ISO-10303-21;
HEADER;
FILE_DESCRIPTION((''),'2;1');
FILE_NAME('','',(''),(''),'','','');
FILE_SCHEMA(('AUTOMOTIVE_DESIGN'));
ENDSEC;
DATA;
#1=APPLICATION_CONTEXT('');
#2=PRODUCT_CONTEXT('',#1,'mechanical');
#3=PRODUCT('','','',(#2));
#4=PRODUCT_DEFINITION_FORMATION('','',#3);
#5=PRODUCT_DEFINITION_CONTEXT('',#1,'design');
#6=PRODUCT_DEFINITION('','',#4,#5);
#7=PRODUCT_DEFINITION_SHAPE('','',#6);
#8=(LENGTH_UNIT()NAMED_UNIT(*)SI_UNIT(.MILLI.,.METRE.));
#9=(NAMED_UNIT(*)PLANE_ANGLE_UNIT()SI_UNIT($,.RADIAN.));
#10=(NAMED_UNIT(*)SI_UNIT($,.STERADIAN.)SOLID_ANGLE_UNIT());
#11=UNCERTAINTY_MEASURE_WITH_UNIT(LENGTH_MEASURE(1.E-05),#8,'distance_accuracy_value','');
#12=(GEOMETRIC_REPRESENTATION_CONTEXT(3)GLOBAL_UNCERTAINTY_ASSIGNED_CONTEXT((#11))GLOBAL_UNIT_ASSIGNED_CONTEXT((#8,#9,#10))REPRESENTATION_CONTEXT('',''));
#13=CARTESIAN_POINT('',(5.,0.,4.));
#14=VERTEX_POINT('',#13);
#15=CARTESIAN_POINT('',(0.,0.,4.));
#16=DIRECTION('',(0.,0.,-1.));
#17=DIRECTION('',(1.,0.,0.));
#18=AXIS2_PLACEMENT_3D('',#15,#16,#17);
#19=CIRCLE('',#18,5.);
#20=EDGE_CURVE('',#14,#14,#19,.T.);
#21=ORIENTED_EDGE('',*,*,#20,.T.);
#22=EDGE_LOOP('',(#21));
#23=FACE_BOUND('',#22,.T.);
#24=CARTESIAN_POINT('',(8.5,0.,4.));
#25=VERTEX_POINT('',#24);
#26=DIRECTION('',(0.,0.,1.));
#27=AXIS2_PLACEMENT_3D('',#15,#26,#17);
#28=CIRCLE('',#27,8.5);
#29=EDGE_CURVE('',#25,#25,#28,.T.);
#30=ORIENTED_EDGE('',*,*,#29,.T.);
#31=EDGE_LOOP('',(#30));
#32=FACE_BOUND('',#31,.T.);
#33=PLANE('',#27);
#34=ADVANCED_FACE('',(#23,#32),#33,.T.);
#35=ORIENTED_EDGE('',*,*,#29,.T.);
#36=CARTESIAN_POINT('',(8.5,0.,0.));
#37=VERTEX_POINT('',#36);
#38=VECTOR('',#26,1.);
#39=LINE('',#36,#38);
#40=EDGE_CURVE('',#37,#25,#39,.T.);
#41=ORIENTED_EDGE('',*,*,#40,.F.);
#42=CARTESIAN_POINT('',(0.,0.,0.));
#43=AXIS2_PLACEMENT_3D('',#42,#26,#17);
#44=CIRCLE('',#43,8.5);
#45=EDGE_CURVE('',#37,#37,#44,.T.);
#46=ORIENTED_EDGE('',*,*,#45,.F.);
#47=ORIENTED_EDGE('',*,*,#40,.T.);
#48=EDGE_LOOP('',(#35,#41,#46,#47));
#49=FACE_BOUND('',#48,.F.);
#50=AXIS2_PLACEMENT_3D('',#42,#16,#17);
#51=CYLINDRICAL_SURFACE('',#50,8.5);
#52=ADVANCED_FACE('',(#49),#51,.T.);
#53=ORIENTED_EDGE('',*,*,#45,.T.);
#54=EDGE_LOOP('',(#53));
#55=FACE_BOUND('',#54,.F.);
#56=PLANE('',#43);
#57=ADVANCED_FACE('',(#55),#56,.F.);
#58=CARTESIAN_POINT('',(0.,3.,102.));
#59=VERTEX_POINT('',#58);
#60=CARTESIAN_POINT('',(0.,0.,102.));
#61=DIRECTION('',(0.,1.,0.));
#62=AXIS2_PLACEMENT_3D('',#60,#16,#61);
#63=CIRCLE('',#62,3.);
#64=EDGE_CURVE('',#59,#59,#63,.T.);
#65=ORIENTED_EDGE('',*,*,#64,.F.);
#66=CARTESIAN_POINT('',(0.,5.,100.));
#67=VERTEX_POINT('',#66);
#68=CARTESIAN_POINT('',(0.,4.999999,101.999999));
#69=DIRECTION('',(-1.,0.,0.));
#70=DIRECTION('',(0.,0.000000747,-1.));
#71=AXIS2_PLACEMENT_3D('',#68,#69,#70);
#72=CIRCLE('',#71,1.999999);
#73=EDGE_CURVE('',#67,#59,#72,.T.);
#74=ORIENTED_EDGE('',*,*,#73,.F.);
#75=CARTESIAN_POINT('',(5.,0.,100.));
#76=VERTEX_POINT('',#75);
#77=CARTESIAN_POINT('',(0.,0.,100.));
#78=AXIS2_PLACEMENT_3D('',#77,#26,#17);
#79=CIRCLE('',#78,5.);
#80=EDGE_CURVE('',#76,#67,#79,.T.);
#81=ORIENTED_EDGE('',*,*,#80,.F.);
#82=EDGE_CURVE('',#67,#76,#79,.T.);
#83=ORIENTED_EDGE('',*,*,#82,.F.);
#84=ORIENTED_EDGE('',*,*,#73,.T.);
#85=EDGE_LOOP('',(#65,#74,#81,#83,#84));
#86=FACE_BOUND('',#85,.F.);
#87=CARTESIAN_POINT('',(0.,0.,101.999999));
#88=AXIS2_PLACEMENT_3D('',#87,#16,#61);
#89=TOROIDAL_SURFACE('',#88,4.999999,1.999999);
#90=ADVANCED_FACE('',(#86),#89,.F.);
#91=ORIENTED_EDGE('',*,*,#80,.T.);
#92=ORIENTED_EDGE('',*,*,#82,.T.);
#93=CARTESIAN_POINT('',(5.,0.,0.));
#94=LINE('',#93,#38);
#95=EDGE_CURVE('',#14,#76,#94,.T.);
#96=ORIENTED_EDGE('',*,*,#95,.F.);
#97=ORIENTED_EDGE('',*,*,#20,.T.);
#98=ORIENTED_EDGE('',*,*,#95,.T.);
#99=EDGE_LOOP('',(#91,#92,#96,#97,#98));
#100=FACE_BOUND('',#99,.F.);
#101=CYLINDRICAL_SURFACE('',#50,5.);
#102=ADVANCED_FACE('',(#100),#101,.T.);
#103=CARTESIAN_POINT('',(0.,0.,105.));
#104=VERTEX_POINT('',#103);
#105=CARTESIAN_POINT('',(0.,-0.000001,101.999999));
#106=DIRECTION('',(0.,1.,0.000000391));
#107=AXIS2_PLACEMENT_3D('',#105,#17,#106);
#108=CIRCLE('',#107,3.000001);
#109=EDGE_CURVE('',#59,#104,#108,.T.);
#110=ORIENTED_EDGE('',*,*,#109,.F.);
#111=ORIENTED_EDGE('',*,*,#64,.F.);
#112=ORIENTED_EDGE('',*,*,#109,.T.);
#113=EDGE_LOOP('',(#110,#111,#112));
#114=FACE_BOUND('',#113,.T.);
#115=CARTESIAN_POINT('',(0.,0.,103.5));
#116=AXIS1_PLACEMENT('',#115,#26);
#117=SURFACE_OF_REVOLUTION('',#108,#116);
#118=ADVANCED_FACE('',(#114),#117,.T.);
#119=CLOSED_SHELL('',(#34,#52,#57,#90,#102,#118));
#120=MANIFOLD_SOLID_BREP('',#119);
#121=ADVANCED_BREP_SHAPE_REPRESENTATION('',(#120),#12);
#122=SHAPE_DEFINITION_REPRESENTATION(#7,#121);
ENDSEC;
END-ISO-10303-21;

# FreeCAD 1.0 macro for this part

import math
import FreeCAD as App
import Part
import Sketcher

V = App.Vector

doc = App.newDocument("Part")
body = doc.addObject("PartDesign::Body", "Body")

# Sketch on XY plane
sketch1 = doc.addObject("Sketcher::SketchObject", "Sketch")
body.addObject(sketch1)
sketch1.AttachmentSupport = (doc.XY_Plane, [""])
sketch1.MapMode = "FlatFace"
sketch1.addGeometry(Part.Circle(V(0, 0, 0), V(0, 0, 1), 8), False)
sketch1.addConstraint([
    Sketcher.Constraint("Coincident", 0, 3, -1, 1),
    Sketcher.Constraint("Diameter", 0, 17.0),
])
pad1 = doc.addObject("PartDesign::Pad", "Pad")
body.addObject(pad1)
pad1.Profile = sketch1
pad1.Length = 4

# Sketch on XY plane
sketch2 = doc.addObject("Sketcher::SketchObject", "Sketch001")
body.addObject(sketch2)
sketch2.AttachmentSupport = (doc.XY_Plane, [""])
sketch2.MapMode = "FlatFace"
sketch2.addGeometry(Part.Circle(V(0, 0, 0), V(0, 0, 1), 5), False)
sketch2.addConstraint([
    Sketcher.Constraint("Coincident", 0, 3, -1, 1),
    Sketcher.Constraint("Diameter", 0, 10.0),
])
pad2 = doc.addObject("PartDesign::Pad", "Pad001")
body.addObject(pad2)
pad2.Profile = sketch2
pad2.Length = 100

# Sketch on YZ plane
sketch3 = doc.addObject("Sketcher::SketchObject", "Sketch002")
body.addObject(sketch3)
sketch3.AttachmentSupport = (doc.YZ_Plane, [""])
sketch3.MapMode = "FlatFace"
sketch3.addGeometry([
    Part.LineSegment(V(3, 102, 0), V(0, 102, 0)),
    Part.LineSegment(V(0, 102, 0), V(0, 100, 0)),
    Part.LineSegment(V(0, 100, 0), V(5, 100, 0)),
    Part.ArcOfCircle(Part.Circle(V(5, 102, 0), V(0, 0, 1), 2), math.radians(180), math.radians(270)),
], False)
sketch3.addConstraint([
    Sketcher.Constraint("Coincident", 0, 2, 1, 1),
    Sketcher.Constraint("Coincident", 1, 2, 2, 1),
    Sketcher.Constraint("Tangent", 2, 2, 3, 2),
    Sketcher.Constraint("Coincident", 3, 1, 0, 1),
    Sketcher.Constraint("Horizontal", 0),
    Sketcher.Constraint("Vertical", 1),
    Sketcher.Constraint("Horizontal", 2),
    Sketcher.Constraint("PointOnObject", 0, 2, -2),
    Sketcher.Constraint("Horizontal", 3, 3, 0, 2),
    Sketcher.Constraint("Radius", 3, 1.999999),
    Sketcher.Constraint("DistanceX", 0, 2, 0, 1, 3.0),
    Sketcher.Constraint("DistanceY", -1, 1, 3, 3, 101.999999),
])
revolution = doc.addObject("PartDesign::Revolution", "Revolution")
body.addObject(revolution)
revolution.Profile = sketch3
revolution.ReferenceAxis = (sketch3, ["V_Axis"])
revolution.Angle = 360

# Sketch on YZ plane
sketch4 = doc.addObject("Sketcher::SketchObject", "Sketch003")
body.addObject(sketch4)
sketch4.AttachmentSupport = (doc.YZ_Plane, [""])
sketch4.MapMode = "FlatFace"
sketch4.addGeometry([
    Part.LineSegment(V(0, 105, 0), V(0, 102, 0)),
    Part.LineSegment(V(0, 102, 0), V(3, 102, 0)),
    Part.ArcOfCircle(Part.Circle(V(0, 102, 0), V(0, 0, 1), 3), math.radians(0), math.radians(90)),
], False)
sketch4.addConstraint([
    Sketcher.Constraint("Coincident", 0, 2, 1, 1),
    Sketcher.Constraint("Coincident", 1, 2, 2, 1),
    Sketcher.Constraint("Coincident", 2, 2, 0, 1),
    Sketcher.Constraint("Vertical", 0),
    Sketcher.Constraint("Horizontal", 1),
    Sketcher.Constraint("Coincident", 0, 2, 2, 3),
    Sketcher.Constraint("PointOnObject", 2, 3, -2),
    Sketcher.Constraint("Radius", 2, 3.000001),
    Sketcher.Constraint("DistanceY", -1, 1, 2, 3, 101.999999),
])
revolution2 = doc.addObject("PartDesign::Revolution", "Revolution001")
body.addObject(revolution2)
revolution2.Profile = sketch4
revolution2.ReferenceAxis = (sketch4, ["V_Axis"])
revolution2.Angle = 360

doc.recompute()
